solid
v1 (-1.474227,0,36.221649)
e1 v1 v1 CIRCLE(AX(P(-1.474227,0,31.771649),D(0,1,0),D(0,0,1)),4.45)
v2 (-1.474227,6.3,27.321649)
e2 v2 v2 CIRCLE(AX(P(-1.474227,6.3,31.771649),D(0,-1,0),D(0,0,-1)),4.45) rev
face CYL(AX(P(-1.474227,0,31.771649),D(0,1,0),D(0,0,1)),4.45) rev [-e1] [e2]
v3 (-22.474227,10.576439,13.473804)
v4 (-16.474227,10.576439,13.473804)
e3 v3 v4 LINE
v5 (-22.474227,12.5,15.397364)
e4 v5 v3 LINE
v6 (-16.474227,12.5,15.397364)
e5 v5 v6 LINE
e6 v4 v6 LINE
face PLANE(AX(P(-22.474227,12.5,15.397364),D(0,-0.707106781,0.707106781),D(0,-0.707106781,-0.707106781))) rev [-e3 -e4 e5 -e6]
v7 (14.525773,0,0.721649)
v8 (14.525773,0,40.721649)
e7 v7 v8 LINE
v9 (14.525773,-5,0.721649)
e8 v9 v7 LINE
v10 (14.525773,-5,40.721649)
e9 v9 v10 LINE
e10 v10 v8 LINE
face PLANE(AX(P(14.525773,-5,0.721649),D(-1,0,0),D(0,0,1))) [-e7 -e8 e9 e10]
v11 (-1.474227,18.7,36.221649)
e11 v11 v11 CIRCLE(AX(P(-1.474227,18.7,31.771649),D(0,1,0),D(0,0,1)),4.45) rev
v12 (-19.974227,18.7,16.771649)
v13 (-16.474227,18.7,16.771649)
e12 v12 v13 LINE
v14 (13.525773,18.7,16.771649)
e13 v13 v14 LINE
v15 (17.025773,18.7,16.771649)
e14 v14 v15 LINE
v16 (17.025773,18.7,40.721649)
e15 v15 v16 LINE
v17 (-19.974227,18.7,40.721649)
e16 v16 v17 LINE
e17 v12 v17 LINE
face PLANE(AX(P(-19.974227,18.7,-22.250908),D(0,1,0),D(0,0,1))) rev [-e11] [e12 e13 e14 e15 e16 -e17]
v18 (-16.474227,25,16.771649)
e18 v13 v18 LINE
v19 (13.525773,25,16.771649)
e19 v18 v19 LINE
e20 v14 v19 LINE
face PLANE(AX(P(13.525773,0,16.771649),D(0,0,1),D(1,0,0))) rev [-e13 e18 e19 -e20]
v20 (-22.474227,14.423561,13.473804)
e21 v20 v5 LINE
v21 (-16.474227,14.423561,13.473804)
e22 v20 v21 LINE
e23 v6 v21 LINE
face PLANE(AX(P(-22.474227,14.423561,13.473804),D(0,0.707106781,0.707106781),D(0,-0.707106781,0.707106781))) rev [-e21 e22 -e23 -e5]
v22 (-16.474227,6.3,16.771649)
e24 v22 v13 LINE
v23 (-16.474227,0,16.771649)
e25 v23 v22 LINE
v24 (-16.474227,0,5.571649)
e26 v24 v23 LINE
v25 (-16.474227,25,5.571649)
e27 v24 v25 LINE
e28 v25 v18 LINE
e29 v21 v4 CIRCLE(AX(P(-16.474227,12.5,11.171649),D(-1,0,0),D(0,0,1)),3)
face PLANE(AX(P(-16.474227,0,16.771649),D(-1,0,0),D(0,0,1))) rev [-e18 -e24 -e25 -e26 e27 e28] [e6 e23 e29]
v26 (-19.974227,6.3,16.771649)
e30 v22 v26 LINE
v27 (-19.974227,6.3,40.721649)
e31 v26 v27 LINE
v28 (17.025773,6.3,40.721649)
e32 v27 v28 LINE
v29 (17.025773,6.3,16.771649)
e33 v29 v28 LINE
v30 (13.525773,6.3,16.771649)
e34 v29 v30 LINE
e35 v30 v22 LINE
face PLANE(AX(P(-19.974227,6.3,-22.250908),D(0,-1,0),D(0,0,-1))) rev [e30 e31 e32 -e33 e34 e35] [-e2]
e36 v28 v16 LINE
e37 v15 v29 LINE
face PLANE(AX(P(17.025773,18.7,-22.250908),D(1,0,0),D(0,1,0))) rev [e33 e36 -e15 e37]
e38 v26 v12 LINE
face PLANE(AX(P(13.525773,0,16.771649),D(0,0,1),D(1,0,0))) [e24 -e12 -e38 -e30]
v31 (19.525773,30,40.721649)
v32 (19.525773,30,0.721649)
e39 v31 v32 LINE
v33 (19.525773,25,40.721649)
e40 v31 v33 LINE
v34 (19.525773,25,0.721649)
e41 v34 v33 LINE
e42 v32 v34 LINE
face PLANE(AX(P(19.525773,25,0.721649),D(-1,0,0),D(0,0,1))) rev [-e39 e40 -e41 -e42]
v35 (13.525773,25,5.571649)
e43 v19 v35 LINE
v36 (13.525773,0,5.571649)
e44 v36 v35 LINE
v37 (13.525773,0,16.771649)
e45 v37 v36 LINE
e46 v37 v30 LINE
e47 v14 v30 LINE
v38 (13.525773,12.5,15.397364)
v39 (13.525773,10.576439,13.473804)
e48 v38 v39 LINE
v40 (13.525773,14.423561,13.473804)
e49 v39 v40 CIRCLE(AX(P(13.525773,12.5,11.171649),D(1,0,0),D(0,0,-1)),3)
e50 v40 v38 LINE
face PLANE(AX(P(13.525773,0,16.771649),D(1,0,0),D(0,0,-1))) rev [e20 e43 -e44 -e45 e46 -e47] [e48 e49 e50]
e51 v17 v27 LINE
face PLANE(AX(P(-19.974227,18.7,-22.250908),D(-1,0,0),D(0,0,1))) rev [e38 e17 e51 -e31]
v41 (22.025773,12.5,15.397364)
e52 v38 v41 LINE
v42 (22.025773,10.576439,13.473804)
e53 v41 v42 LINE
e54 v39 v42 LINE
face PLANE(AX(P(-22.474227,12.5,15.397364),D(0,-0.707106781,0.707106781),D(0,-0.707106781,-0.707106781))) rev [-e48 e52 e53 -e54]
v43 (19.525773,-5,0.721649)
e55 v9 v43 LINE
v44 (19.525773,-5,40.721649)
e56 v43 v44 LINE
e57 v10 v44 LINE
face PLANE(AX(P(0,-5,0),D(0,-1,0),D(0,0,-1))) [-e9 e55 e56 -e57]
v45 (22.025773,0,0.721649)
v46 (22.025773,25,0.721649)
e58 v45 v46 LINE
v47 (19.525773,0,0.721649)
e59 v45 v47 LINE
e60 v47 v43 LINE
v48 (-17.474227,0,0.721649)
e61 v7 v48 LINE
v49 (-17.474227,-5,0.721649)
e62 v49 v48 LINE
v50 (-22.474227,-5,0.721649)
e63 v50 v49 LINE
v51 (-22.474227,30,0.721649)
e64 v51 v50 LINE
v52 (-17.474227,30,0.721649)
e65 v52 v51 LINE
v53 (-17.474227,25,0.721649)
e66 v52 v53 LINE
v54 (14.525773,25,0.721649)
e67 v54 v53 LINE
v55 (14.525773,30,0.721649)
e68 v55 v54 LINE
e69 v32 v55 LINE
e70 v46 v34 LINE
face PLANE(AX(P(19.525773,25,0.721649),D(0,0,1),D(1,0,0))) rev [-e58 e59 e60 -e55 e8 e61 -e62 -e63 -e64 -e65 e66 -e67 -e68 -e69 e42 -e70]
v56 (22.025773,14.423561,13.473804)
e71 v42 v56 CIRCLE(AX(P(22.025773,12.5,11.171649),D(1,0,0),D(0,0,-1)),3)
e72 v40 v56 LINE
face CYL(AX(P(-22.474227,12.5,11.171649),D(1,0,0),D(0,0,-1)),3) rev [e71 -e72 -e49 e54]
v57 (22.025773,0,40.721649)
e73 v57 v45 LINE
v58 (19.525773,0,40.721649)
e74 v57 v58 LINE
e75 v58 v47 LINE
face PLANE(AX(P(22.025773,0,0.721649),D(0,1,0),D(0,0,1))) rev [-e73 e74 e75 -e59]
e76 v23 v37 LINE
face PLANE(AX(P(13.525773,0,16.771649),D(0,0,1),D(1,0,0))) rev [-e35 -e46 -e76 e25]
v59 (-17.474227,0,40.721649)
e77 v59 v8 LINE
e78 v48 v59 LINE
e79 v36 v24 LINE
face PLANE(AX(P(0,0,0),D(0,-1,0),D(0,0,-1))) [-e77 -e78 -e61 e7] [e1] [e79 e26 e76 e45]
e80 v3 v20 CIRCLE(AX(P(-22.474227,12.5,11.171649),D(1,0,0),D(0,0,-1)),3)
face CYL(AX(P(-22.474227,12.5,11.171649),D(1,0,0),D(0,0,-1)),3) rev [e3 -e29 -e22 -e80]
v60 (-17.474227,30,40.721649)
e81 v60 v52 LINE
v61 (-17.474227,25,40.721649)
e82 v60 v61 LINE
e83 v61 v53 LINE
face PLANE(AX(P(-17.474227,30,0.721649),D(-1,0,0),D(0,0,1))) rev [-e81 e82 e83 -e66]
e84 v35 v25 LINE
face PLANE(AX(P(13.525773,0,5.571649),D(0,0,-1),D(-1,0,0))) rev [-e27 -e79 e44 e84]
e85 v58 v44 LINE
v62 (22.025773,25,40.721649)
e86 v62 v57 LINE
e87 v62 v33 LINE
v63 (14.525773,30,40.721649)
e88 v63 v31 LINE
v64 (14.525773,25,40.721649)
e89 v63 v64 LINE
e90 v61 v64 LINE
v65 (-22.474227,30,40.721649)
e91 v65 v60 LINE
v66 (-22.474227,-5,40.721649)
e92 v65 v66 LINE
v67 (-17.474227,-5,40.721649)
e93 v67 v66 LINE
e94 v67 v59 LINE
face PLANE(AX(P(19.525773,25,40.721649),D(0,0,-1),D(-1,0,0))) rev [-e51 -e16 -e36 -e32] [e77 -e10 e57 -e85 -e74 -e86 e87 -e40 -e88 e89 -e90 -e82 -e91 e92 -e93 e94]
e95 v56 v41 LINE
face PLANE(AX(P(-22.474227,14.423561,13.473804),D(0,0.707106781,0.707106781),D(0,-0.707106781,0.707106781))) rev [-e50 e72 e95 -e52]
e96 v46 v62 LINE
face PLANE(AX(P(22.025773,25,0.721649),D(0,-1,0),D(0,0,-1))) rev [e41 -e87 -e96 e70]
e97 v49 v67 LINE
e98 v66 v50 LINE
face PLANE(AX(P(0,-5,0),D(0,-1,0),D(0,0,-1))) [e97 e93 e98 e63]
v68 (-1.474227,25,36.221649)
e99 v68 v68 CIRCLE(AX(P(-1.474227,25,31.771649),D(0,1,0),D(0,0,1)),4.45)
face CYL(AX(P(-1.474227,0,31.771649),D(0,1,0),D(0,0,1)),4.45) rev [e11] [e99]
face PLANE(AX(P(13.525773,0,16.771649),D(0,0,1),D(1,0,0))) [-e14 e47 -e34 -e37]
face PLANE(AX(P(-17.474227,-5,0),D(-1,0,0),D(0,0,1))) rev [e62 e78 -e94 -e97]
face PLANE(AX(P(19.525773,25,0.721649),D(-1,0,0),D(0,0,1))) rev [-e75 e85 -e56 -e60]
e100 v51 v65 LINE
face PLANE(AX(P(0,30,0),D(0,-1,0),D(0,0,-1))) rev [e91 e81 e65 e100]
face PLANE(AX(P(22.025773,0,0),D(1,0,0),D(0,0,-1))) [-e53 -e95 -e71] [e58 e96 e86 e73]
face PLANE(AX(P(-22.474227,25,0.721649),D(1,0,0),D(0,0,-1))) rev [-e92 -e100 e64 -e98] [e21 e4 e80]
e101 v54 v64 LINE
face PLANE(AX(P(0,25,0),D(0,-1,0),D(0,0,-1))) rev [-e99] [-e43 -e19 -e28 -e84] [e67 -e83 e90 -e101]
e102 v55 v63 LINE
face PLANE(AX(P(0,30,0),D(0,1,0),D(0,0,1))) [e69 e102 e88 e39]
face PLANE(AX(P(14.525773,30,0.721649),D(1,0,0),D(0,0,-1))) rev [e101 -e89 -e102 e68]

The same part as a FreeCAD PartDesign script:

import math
import FreeCAD as App
import Part
import Sketcher

doc = App.newDocument("Part")
params = doc.addObject("Spreadsheet::Sheet", "Params")
for row, (alias, value) in enumerate([
    ("sketch1_width", "42 mm"),
    ("sketch1_height", "40 mm"),
    ("pad1_length", "25 mm"),
    ("sketch2_diameter", "8.9 mm"),
    ("sketch2_width", "30 mm"),
    ("sketch2_height", "11.2 mm"),
    ("pocket1_length", "25 mm"),
    ("sketch3_width", "37 mm"),
    ("sketch3_height", "12.4 mm"),
    ("pocket2_length", "23.95 mm"),
    ("sketch4_width", "5 mm"),
    ("sketch4_height", "40 mm"),
    ("pad2_length", "5 mm"),
    ("sketch5_width", "5 mm"),
    ("sketch5_height", "40 mm"),
    ("pad3_length", "5 mm"),
    ("sketch6_width", "25 mm"),
    ("sketch6_height", "40 mm"),
    ("pad4_length", "2.5 mm"),
    ("sketch7_radius", "3 mm"),
], start=1):
    params.set(f"A{row}", alias)
    params.set(f"B{row}", "=" + value)
    params.setAlias(f"B{row}", alias)

body = doc.addObject("PartDesign::Body", "Body")

# Sketch on XZ plane
sketch1 = body.newObject("Sketcher::SketchObject", "Sketch")
sketch1.AttachmentSupport = (doc.getObject("XZ_Plane"), [""])
sketch1.MapMode = "FlatFace"
sketch1.addGeometry([
    Part.LineSegment(App.Vector(19.525773, 40.721649, 0), App.Vector(19.525773, 0.721649, 0)),
    Part.LineSegment(App.Vector(19.525773, 0.721649, 0), App.Vector(-22.474227, 0.721649, 0)),
    Part.LineSegment(App.Vector(-22.474227, 0.721649, 0), App.Vector(-22.474227, 40.721649, 0)),
    Part.LineSegment(App.Vector(-22.474227, 40.721649, 0), App.Vector(19.525773, 40.721649, 0)),
], False)
sketch1.addConstraint([
    Sketcher.Constraint("Coincident", 0, 2, 1, 1),
    Sketcher.Constraint("Coincident", 1, 2, 2, 1),
    Sketcher.Constraint("Coincident", 2, 2, 3, 1),
    Sketcher.Constraint("Coincident", 3, 2, 0, 1),
    Sketcher.Constraint("Vertical", 0),
    Sketcher.Constraint("Horizontal", 1),
    Sketcher.Constraint("Vertical", 2),
    Sketcher.Constraint("Horizontal", 3),
    Sketcher.Constraint("DistanceX", 1, 2, 1, 1, 42.0),
    Sketcher.Constraint("DistanceY", 0, 2, 0, 1, 40.0),
    Sketcher.Constraint("DistanceY", -1, 1, 0, 2, 0.721649),
    Sketcher.Constraint("DistanceX", -1, 1, 0, 2, 19.525773),
])
sketch1.setExpression("Constraints[8]", "Params.sketch1_width")
sketch1.setExpression("Constraints[9]", "Params.sketch1_height")
pad1 = body.newObject("PartDesign::Pad", "Pad")
pad1.Profile = sketch1
pad1.setExpression("Length", "Params.pad1_length")
pad1.Reversed = True

# Sketch on XZ plane
sketch2 = body.newObject("Sketcher::SketchObject", "Sketch001")
sketch2.AttachmentSupport = (doc.getObject("XZ_Plane"), [""])
sketch2.MapMode = "FlatFace"
sketch2.AttachmentOffset = App.Placement(App.Vector(0, 0, -25), App.Rotation())
sketch2.addGeometry([
    Part.Circle(App.Vector(-1.474227, 31.771649, 0), App.Vector(0, 0, 1), 4.45),  # 0
    Part.LineSegment(App.Vector(13.525773, 16.771649, 0), App.Vector(13.525773, 5.571649, 0)),  # 1
    Part.LineSegment(App.Vector(13.525773, 5.571649, 0), App.Vector(-16.474227, 5.571649, 0)),  # 2
    Part.LineSegment(App.Vector(-16.474227, 5.571649, 0), App.Vector(-16.474227, 16.771649, 0)),  # 3
    Part.LineSegment(App.Vector(-16.474227, 16.771649, 0), App.Vector(13.525773, 16.771649, 0)),  # 4
], False)
sketch2.addConstraint([
    Sketcher.Constraint("Coincident", 1, 2, 2, 1),
    Sketcher.Constraint("Coincident", 2, 2, 3, 1),
    Sketcher.Constraint("Coincident", 3, 2, 4, 1),
    Sketcher.Constraint("Coincident", 4, 2, 1, 1),
    Sketcher.Constraint("Vertical", 1),
    Sketcher.Constraint("Horizontal", 2),
    Sketcher.Constraint("Vertical", 3),
    Sketcher.Constraint("Horizontal", 4),
    Sketcher.Constraint("Diameter", 0, 8.9),
    Sketcher.Constraint("DistanceX", 2, 2, 2, 1, 30.0),
    Sketcher.Constraint("DistanceY", 1, 2, 1, 1, 11.2),
    Sketcher.Constraint("DistanceX", 0, 3, 1, 2, 15.0),
    Sketcher.Constraint("DistanceY", 3, 2, 0, 3, 15.0),
    Sketcher.Constraint("DistanceY", -1, 1, 0, 3, 31.771649),
    Sketcher.Constraint("DistanceX", 0, 3, -1, 1, 1.474227),
])
sketch2.setExpression("Constraints[8]", "Params.sketch2_diameter")
sketch2.setExpression("Constraints[9]", "Params.sketch2_width")
sketch2.setExpression("Constraints[10]", "Params.sketch2_height")
pocket1 = body.newObject("PartDesign::Pocket", "Pocket")
pocket1.Profile = sketch2
pocket1.setExpression("Length", "Params.pocket1_length")
pocket1.Reversed = True

# Sketch on XY plane
sketch3 = body.newObject("Sketcher::SketchObject", "Sketch002")
sketch3.AttachmentSupport = (doc.getObject("XY_Plane"), [""])
sketch3.MapMode = "FlatFace"
sketch3.AttachmentOffset = App.Placement(App.Vector(0, 0, 40.721649), App.Rotation())
sketch3.addGeometry([
    Part.LineSegment(App.Vector(-19.974227, 18.7, 0), App.Vector(-19.974227, 6.3, 0)),
    Part.LineSegment(App.Vector(-19.974227, 6.3, 0), App.Vector(17.025773, 6.3, 0)),
    Part.LineSegment(App.Vector(17.025773, 6.3, 0), App.Vector(17.025773, 18.7, 0)),
    Part.LineSegment(App.Vector(17.025773, 18.7, 0), App.Vector(-19.974227, 18.7, 0)),
], False)
sketch3.addConstraint([
    Sketcher.Constraint("Coincident", 0, 2, 1, 1),
    Sketcher.Constraint("Coincident", 1, 2, 2, 1),
    Sketcher.Constraint("Coincident", 2, 2, 3, 1),
    Sketcher.Constraint("Coincident", 3, 2, 0, 1),
    Sketcher.Constraint("Vertical", 0),
    Sketcher.Constraint("Horizontal", 1),
    Sketcher.Constraint("Vertical", 2),
    Sketcher.Constraint("Horizontal", 3),
    Sketcher.Constraint("DistanceX", 1, 1, 1, 2, 37.0),
    Sketcher.Constraint("DistanceY", 0, 2, 0, 1, 12.4),
    Sketcher.Constraint("DistanceY", -1, 1, 0, 2, 6.3),
    Sketcher.Constraint("DistanceX", 0, 2, -1, 1, 19.974227),
])
sketch3.setExpression("Constraints[8]", "Params.sketch3_width")
sketch3.setExpression("Constraints[9]", "Params.sketch3_height")
pocket2 = body.newObject("PartDesign::Pocket", "Pocket001")
pocket2.Profile = sketch3
pocket2.setExpression("Length", "Params.pocket2_length")

# Sketch on XZ plane
sketch4 = body.newObject("Sketcher::SketchObject", "Sketch003")
sketch4.AttachmentSupport = (doc.getObject("XZ_Plane"), [""])
sketch4.MapMode = "FlatFace"
sketch4.AttachmentOffset = App.Placement(App.Vector(0, 0, -25), App.Rotation())
sketch4.addGeometry([
    Part.LineSegment(App.Vector(-17.474227, 40.721649, 0), App.Vector(-17.474227, 0.721649, 0)),  # 0
    Part.LineSegment(App.Vector(-17.474227, 0.721649, 0), App.Vector(-22.474227, 0.721649, 0)),  # 1
    Part.LineSegment(App.Vector(-22.474227, 0.721649, 0), App.Vector(-22.474227, 40.721649, 0)),  # 2
    Part.LineSegment(App.Vector(-22.474227, 40.721649, 0), App.Vector(-17.474227, 40.721649, 0)),  # 3
    Part.LineSegment(App.Vector(19.525773, 40.721649, 0), App.Vector(19.525773, 0.721649, 0)),  # 4
    Part.LineSegment(App.Vector(19.525773, 0.721649, 0), App.Vector(14.525773, 0.721649, 0)),  # 5
    Part.LineSegment(App.Vector(14.525773, 0.721649, 0), App.Vector(14.525773, 40.721649, 0)),  # 6
    Part.LineSegment(App.Vector(14.525773, 40.721649, 0), App.Vector(19.525773, 40.721649, 0)),  # 7
], False)
sketch4.addConstraint([
    Sketcher.Constraint("Coincident", 0, 2, 1, 1),
    Sketcher.Constraint("Coincident", 1, 2, 2, 1),
    Sketcher.Constraint("Coincident", 2, 2, 3, 1),
    Sketcher.Constraint("Coincident", 3, 2, 0, 1),
    Sketcher.Constraint("Coincident", 4, 2, 5, 1),
    Sketcher.Constraint("Coincident", 5, 2, 6, 1),
    Sketcher.Constraint("Coincident", 6, 2, 7, 1),
    Sketcher.Constraint("Coincident", 7, 2, 4, 1),
    Sketcher.Constraint("Vertical", 0),
    Sketcher.Constraint("Horizontal", 1),
    Sketcher.Constraint("Vertical", 2),
    Sketcher.Constraint("Horizontal", 3),
    Sketcher.Constraint("Vertical", 4),
    Sketcher.Constraint("Horizontal", 5),
    Sketcher.Constraint("Vertical", 6),
    Sketcher.Constraint("Horizontal", 7),
    Sketcher.Constraint("Horizontal", 1, 2, 4, 2),
    Sketcher.Constraint("Horizontal", 3, 2, 6, 2),
    Sketcher.Constraint("Equal", 3, 5),
    Sketcher.Constraint("DistanceX", 1, 2, 1, 1, 5.0),
    Sketcher.Constraint("DistanceY", 0, 2, 0, 1, 40.0),
    Sketcher.Constraint("DistanceX", 0, 2, 4, 2, 37.0),
    Sketcher.Constraint("DistanceY", -1, 1, 0, 2, 0.721649),
    Sketcher.Constraint("DistanceX", 0, 2, -1, 1, 17.474227),
])
sketch4.setExpression("Constraints[19]", "Params.sketch4_width")
sketch4.setExpression("Constraints[20]", "Params.sketch4_height")
pad2 = body.newObject("PartDesign::Pad", "Pad001")
pad2.Profile = sketch4
pad2.setExpression("Length", "Params.pad2_length")
pad2.Reversed = True

# Sketch on XZ plane
sketch5 = body.newObject("Sketcher::SketchObject", "Sketch004")
sketch5.AttachmentSupport = (doc.getObject("XZ_Plane"), [""])
sketch5.MapMode = "FlatFace"
sketch5.addGeometry([
    Part.LineSegment(App.Vector(-22.474227, 40.721649, 0), App.Vector(-22.474227, 0.721649, 0)),  # 0
    Part.LineSegment(App.Vector(-22.474227, 0.721649, 0), App.Vector(-17.474227, 0.721649, 0)),  # 1
    Part.LineSegment(App.Vector(-17.474227, 0.721649, 0), App.Vector(-17.474227, 40.721649, 0)),  # 2
    Part.LineSegment(App.Vector(-17.474227, 40.721649, 0), App.Vector(-22.474227, 40.721649, 0)),  # 3
    Part.LineSegment(App.Vector(14.525773, 40.721649, 0), App.Vector(14.525773, 0.721649, 0)),  # 4
    Part.LineSegment(App.Vector(14.525773, 0.721649, 0), App.Vector(19.525773, 0.721649, 0)),  # 5
    Part.LineSegment(App.Vector(19.525773, 0.721649, 0), App.Vector(19.525773, 40.721649, 0)),  # 6
    Part.LineSegment(App.Vector(19.525773, 40.721649, 0), App.Vector(14.525773, 40.721649, 0)),  # 7
], False)
sketch5.addConstraint([
    Sketcher.Constraint("Coincident", 0, 2, 1, 1),
    Sketcher.Constraint("Coincident", 1, 2, 2, 1),
    Sketcher.Constraint("Coincident", 2, 2, 3, 1),
    Sketcher.Constraint("Coincident", 3, 2, 0, 1),
    Sketcher.Constraint("Coincident", 4, 2, 5, 1),
    Sketcher.Constraint("Coincident", 5, 2, 6, 1),
    Sketcher.Constraint("Coincident", 6, 2, 7, 1),
    Sketcher.Constraint("Coincident", 7, 2, 4, 1),
    Sketcher.Constraint("Vertical", 0),
    Sketcher.Constraint("Horizontal", 1),
    Sketcher.Constraint("Vertical", 2),
    Sketcher.Constraint("Horizontal", 3),
    Sketcher.Constraint("Vertical", 4),
    Sketcher.Constraint("Horizontal", 5),
    Sketcher.Constraint("Vertical", 6),
    Sketcher.Constraint("Horizontal", 7),
    Sketcher.Constraint("Horizontal", 1, 2, 4, 2),
    Sketcher.Constraint("Horizontal", 3, 2, 6, 2),
    Sketcher.Constraint("Equal", 3, 5),
    Sketcher.Constraint("DistanceX", 1, 1, 1, 2, 5.0),
    Sketcher.Constraint("DistanceY", 0, 2, 0, 1, 40.0),
    Sketcher.Constraint("DistanceX", 1, 2, 4, 2, 32.0),
    Sketcher.Constraint("DistanceY", -1, 1, 0, 2, 0.721649),
    Sketcher.Constraint("DistanceX", 0, 2, -1, 1, 22.474227),
])
sketch5.setExpression("Constraints[19]", "Params.sketch5_width")
sketch5.setExpression("Constraints[20]", "Params.sketch5_height")
pad3 = body.newObject("PartDesign::Pad", "Pad002")
pad3.Profile = sketch5
pad3.setExpression("Length", "Params.pad3_length")

# Sketch on YZ plane
sketch6 = body.newObject("Sketcher::SketchObject", "Sketch005")
sketch6.AttachmentSupport = (doc.getObject("YZ_Plane"), [""])
sketch6.MapMode = "FlatFace"
sketch6.AttachmentOffset = App.Placement(App.Vector(0, 0, 19.525773), App.Rotation())
sketch6.addGeometry([
    Part.LineSegment(App.Vector(25, 40.721649, 0), App.Vector(0, 40.721649, 0)),
    Part.LineSegment(App.Vector(0, 40.721649, 0), App.Vector(0, 0.721649, 0)),
    Part.LineSegment(App.Vector(0, 0.721649, 0), App.Vector(25, 0.721649, 0)),
    Part.LineSegment(App.Vector(25, 0.721649, 0), App.Vector(25, 40.721649, 0)),
], False)
sketch6.addConstraint([
    Sketcher.Constraint("Coincident", 0, 2, 1, 1),
    Sketcher.Constraint("Coincident", 1, 2, 2, 1),
    Sketcher.Constraint("Coincident", 2, 2, 3, 1),
    Sketcher.Constraint("Coincident", 3, 2, 0, 1),
    Sketcher.Constraint("Horizontal", 0),
    Sketcher.Constraint("Vertical", 1),
    Sketcher.Constraint("Horizontal", 2),
    Sketcher.Constraint("Vertical", 3),
    Sketcher.Constraint("PointOnObject", 0, 2, -2),
    Sketcher.Constraint("DistanceX", 0, 2, 0, 1, 25.0),
    Sketcher.Constraint("DistanceY", 1, 2, 1, 1, 40.0),
    Sketcher.Constraint("DistanceY", -1, 1, 0, 2, 40.721649),
])
sketch6.setExpression("Constraints[9]", "Params.sketch6_width")
sketch6.setExpression("Constraints[10]", "Params.sketch6_height")
pad4 = body.newObject("PartDesign::Pad", "Pad003")
pad4.Profile = sketch6
pad4.setExpression("Length", "Params.pad4_length")

# Sketch on YZ plane
sketch7 = body.newObject("Sketcher::SketchObject", "Sketch006")
sketch7.AttachmentSupport = (doc.getObject("YZ_Plane"), [""])
sketch7.MapMode = "FlatFace"
sketch7.AttachmentOffset = App.Placement(App.Vector(0, 0, 19.525773), App.Rotation())
sketch7.addGeometry([
    Part.LineSegment(App.Vector(14.423561, 13.473804, 0), App.Vector(12.5, 15.397364, 0)),
    Part.LineSegment(App.Vector(12.5, 15.397364, 0), App.Vector(10.576439, 13.473804, 0)),
    Part.ArcOfCircle(Part.Circle(App.Vector(12.5, 11.171649, 0), App.Vector(0, 0, 1), 3), math.radians(129.880378), math.radians(410.119622)),
], False)
sketch7.addConstraint([
    Sketcher.Constraint("Coincident", 0, 2, 1, 1),
    Sketcher.Constraint("Coincident", 1, 2, 2, 1),
    Sketcher.Constraint("Coincident", 2, 2, 0, 1),
    Sketcher.Constraint("Perpendicular", 0, 1),
    Sketcher.Constraint("Horizontal", 1, 2, 2, 2),
    Sketcher.Constraint("Vertical", 2, 3, 0, 2),
    Sketcher.Constraint("Radius", 2, 3.0),
    Sketcher.Constraint("DistanceX", -1, 1, 2, 3, 12.5),
    Sketcher.Constraint("DistanceY", -1, 1, 2, 3, 11.171649),
    Sketcher.Constraint("DistanceX", -1, 1, 1, 2, 10.576439),
])
sketch7.setExpression("Constraints[6]", "Params.sketch7_radius")
pocket3 = body.newObject("PartDesign::Pocket", "Pocket002")
pocket3.Profile = sketch7
pocket3.Type = "ThroughAll"
pocket3.Midplane = True

doc.recompute()
